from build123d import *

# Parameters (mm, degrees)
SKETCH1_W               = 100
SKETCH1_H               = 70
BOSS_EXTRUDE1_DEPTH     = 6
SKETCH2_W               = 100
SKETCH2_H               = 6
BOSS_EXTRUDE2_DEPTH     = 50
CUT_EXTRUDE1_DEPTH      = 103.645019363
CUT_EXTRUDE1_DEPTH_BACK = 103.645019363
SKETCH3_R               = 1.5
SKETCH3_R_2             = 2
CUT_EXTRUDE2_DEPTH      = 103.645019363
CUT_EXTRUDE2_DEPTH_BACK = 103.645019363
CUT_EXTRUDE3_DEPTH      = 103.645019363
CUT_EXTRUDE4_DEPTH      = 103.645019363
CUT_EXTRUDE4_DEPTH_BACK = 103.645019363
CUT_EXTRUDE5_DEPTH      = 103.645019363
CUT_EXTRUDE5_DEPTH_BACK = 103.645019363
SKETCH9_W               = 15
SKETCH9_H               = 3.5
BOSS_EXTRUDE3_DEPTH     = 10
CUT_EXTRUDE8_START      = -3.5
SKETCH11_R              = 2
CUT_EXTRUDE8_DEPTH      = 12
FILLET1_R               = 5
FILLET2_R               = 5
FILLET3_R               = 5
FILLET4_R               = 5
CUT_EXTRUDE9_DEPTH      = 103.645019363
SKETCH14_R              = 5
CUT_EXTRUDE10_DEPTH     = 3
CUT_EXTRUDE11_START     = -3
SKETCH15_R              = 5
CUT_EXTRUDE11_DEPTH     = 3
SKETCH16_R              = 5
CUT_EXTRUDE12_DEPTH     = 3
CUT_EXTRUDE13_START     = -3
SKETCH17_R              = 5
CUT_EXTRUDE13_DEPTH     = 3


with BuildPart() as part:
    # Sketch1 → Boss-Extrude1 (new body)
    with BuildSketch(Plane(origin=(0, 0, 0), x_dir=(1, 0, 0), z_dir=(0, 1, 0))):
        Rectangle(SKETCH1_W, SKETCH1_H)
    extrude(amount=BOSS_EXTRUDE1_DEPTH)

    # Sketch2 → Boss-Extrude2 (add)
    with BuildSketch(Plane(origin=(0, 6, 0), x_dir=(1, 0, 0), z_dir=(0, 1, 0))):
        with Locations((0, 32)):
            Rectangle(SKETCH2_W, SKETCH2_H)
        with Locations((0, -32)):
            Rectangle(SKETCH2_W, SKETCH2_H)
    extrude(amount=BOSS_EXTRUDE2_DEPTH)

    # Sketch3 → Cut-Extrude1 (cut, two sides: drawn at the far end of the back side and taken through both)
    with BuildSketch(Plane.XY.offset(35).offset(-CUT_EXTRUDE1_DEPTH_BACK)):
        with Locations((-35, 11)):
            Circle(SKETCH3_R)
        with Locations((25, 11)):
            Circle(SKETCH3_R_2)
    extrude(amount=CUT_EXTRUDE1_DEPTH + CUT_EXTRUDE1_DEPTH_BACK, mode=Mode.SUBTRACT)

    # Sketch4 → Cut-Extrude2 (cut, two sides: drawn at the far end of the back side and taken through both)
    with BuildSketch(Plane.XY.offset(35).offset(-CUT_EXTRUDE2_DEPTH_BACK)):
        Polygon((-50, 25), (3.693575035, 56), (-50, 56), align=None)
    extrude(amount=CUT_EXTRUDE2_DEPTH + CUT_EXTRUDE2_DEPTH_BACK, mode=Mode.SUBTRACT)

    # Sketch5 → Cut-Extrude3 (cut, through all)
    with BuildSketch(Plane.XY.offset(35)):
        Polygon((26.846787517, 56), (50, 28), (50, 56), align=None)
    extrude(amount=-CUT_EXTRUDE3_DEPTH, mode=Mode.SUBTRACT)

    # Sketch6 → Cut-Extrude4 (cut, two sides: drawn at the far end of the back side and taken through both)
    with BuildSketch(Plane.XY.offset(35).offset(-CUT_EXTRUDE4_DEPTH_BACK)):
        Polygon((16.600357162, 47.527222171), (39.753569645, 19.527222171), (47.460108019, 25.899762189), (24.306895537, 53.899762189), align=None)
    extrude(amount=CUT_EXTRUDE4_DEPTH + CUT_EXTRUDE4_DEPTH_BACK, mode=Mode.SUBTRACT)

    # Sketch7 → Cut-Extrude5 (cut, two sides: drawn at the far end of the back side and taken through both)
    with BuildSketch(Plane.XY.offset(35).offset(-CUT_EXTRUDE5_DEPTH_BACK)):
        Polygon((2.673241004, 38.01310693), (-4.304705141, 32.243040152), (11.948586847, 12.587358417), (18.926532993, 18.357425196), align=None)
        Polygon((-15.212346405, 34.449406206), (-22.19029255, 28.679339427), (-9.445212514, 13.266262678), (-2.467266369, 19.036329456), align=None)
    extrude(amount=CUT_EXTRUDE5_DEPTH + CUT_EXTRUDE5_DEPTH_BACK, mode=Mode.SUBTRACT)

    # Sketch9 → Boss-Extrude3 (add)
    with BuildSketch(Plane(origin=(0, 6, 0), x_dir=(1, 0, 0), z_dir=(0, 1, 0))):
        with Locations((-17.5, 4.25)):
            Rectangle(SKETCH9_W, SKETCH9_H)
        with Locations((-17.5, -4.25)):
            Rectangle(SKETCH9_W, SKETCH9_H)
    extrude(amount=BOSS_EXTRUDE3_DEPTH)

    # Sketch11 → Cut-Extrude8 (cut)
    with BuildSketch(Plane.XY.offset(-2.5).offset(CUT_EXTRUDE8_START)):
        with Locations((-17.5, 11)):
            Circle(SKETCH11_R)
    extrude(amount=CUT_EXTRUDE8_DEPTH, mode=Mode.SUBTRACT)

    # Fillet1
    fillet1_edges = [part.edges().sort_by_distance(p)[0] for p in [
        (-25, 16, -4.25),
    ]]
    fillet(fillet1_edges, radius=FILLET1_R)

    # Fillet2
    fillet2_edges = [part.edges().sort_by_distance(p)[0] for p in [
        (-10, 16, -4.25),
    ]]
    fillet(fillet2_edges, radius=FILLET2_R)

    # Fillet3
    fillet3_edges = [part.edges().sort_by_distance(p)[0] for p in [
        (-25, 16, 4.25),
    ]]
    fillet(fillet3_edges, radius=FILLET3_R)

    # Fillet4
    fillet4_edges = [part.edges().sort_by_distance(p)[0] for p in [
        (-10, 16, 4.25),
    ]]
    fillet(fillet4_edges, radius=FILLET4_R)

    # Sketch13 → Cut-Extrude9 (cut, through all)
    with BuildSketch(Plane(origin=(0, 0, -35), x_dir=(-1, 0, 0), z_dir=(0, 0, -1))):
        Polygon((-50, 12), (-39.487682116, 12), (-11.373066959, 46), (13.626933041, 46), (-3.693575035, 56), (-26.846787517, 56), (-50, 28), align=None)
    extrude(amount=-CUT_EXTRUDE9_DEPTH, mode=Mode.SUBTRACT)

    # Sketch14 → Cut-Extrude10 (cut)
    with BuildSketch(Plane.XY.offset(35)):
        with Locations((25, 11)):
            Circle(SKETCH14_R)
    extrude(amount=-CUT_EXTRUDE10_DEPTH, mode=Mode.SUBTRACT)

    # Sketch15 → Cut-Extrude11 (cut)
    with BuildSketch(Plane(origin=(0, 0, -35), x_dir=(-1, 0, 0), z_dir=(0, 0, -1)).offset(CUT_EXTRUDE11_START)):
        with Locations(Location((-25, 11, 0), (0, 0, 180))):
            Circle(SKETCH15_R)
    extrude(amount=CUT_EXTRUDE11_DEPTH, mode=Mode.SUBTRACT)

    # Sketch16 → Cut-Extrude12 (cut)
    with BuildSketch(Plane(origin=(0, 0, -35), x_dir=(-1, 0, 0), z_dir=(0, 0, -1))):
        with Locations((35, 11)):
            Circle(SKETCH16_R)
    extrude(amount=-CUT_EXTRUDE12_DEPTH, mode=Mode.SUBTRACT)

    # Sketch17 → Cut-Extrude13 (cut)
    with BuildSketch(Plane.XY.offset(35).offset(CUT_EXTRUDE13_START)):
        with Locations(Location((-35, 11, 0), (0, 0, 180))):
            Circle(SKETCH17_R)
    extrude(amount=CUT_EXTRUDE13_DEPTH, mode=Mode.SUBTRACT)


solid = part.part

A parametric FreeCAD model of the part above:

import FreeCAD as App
import Part
import Sketcher

V = App.Vector
Q = App.Units.Quantity


def edges_at(feature, points):
    """Names of the edges that pass closest to the given points."""
    edges = feature.Shape.Edges
    near = lambda p: min(range(len(edges)), key=lambda i: edges[i].distToShape(Part.Vertex(*p))[0])
    return sorted({f"Edge{near(p) + 1}" for p in points})


def add_polygon(sketch, points):
    """Adds a closed chain of lines whose ends are joined by coincident constraints."""
    first, n = sketch.GeometryCount, len(points)
    for a, b in zip(points, points[1:] + points[:1]):
        sketch.addGeometry(Part.LineSegment(App.Vector(*a, 0), App.Vector(*b, 0)), False)
    for i in range(n):
        sketch.addConstraint(Sketcher.Constraint("Coincident", first + i, 2, first + (i + 1) % n, 1))

doc = App.newDocument("Part")
params = doc.addObject("Spreadsheet::Sheet", "Params")
for row, (alias, value) in enumerate([
    ("sketch1_width", "100 mm"),
    ("sketch1_height", "70 mm"),
    ("pad1_length", "6 mm"),
    ("sketch2_width", "100 mm"),
    ("sketch2_height", "6 mm"),
    ("pad2_length", "50 mm"),
    ("sketch3_diameter", "3 mm"),
    ("sketch3_diameter2", "4 mm"),
    ("sketch4_height", "31 mm"),
    ("sketch5_height", "28 mm"),
    ("sketch6_length", "10 mm"),
    ("sketch7_length", "20 mm"),
    ("sketch8_width", "15 mm"),
    ("sketch8_height", "3.5 mm"),
    ("pad3_length", "10 mm"),
    ("sketch9_diameter", "4 mm"),
    ("pocket6_length", "12 mm"),
    ("fillet_radius", "5 mm"),
    ("fillet2_radius", "5 mm"),
    ("fillet3_radius", "5 mm"),
    ("fillet4_radius", "5 mm"),
    ("sketch10_width", "25 mm"),
    ("sketch10_height", "16 mm"),
    ("sketch10_length", "20 mm"),
    ("sketch11_diameter", "10 mm"),
    ("pocket8_length", "3 mm"),
    ("sketch12_diameter", "10 mm"),
    ("pocket9_length", "3 mm"),
    ("sketch13_diameter", "10 mm"),
    ("pocket10_length", "3 mm"),
    ("sketch14_diameter", "10 mm"),
    ("pocket11_length", "3 mm"),
], start=1):
    params.set(f"A{row}", alias)
    params.set(f"B{row}", "=" + value)
    params.setAlias(f"B{row}", alias)

body = doc.addObject("PartDesign::Body", "Body")

sketch1 = body.newObject("Sketcher::SketchObject", "Sketch")
sketch1.AttachmentSupport = (doc.getObject("XZ_Plane"), [""])
sketch1.MapMode = "FlatFace"
add_polygon(sketch1, [(-50, -35), (-50, 35), (50, 35), (50, -35)])
sketch1.addConstraint([
    Sketcher.Constraint("Vertical", 0),
    Sketcher.Constraint("Horizontal", 1),
    Sketcher.Constraint("Vertical", 2),
    Sketcher.Constraint("Horizontal", 3),
    Sketcher.Constraint("Symmetric", 0, 2, 2, 2, -1, 1),
    Sketcher.Constraint("DistanceX", 1, 1, 1, 2, 100.0),
    Sketcher.Constraint("DistanceY", 0, 1, 0, 2, 70.0),
])
sketch1.setExpression("Constraints[9]", "Params.sketch1_width")
sketch1.setExpression("Constraints[10]", "Params.sketch1_height")
pad1 = body.newObject("PartDesign::Pad", "Pad")
pad1.Profile = sketch1
pad1.setExpression("Length", "Params.pad1_length")
pad1.Reversed = True

sketch2 = body.newObject("Sketcher::SketchObject", "Sketch001")
sketch2.AttachmentSupport = (doc.getObject("XZ_Plane"), [""])
sketch2.MapMode = "FlatFace"
sketch2.AttachmentOffset = App.Placement(V(0, 0, -6), App.Rotation())
add_polygon(sketch2, [(-50, -35), (-50, -29), (50, -29), (50, -35)])
add_polygon(sketch2, [(-50, 29), (-50, 35), (50, 35), (50, 29)])
sketch2.addConstraint([
    Sketcher.Constraint("Vertical", 0),
    Sketcher.Constraint("Horizontal", 1),
    Sketcher.Constraint("Vertical", 2),
    Sketcher.Constraint("Horizontal", 3),
    Sketcher.Constraint("Vertical", 4),
    Sketcher.Constraint("Horizontal", 5),
    Sketcher.Constraint("Vertical", 6),
    Sketcher.Constraint("Horizontal", 7),
    Sketcher.Constraint("Symmetric", 2, 2, 4, 2, -1, 1),
    Sketcher.Constraint("Symmetric", 0, 2, 6, 2, -1, 1),
    Sketcher.Constraint("Vertical", 3, 2, 4, 2),
    Sketcher.Constraint("DistanceX", 1, 1, 1, 2, 100.0),
    Sketcher.Constraint("DistanceY", 0, 1, 0, 2, 6.0),
    Sketcher.Constraint("DistanceY", 0, 2, -1, 1, 29.0),
])
sketch2.setExpression("Constraints[19]", "Params.sketch2_width")
sketch2.setExpression("Constraints[20]", "Params.sketch2_height")
pad2 = body.newObject("PartDesign::Pad", "Pad001")
pad2.Profile = sketch2
pad2.setExpression("Length", "Params.pad2_length")
pad2.Reversed = True

sketch3 = body.newObject("Sketcher::SketchObject", "Sketch002")
sketch3.AttachmentSupport = (doc.getObject("XY_Plane"), [""])
sketch3.MapMode = "FlatFace"
sketch3.AttachmentOffset = App.Placement(V(0, 0, 35), App.Rotation())
sketch3.addGeometry([
    Part.Circle(V(-35, 11, 0), V(0, 0, 1), 1.5),
    Part.Circle(V(25, 11, 0), V(0, 0, 1), 2),
], False)
sketch3.addConstraint([
    Sketcher.Constraint("Horizontal", 0, 3, 1, 3),
    Sketcher.Constraint("Diameter", 0, 3.0),
    Sketcher.Constraint("Diameter", 1, 4.0),
    Sketcher.Constraint("DistanceX", 0, 3, -1, 1, 35.0),
    Sketcher.Constraint("DistanceY", -1, 1, 0, 3, 11.0),
    Sketcher.Constraint("DistanceX", -1, 1, 1, 3, 25.0),
])
sketch3.setExpression("Constraints[1]", "Params.sketch3_diameter")
sketch3.setExpression("Constraints[2]", "Params.sketch3_diameter2")
pocket1 = body.newObject("PartDesign::Pocket", "Pocket")
pocket1.Profile = sketch3
pocket1.Type = "ThroughAll"
pocket1.Midplane = True

sketch4 = body.newObject("Sketcher::SketchObject", "Sketch003")
sketch4.AttachmentSupport = (doc.getObject("XY_Plane"), [""])
sketch4.MapMode = "FlatFace"
sketch4.AttachmentOffset = App.Placement(V(0, 0, 35), App.Rotation())
add_polygon(sketch4, [(-50, 25), (4, 56), (-50, 56)])
sketch4.addConstraint([
    Sketcher.Constraint("Horizontal", 1),
    Sketcher.Constraint("Vertical", 2),
    Sketcher.Constraint("DistanceY", 2, 2, 2, 1, 31.0),
    Sketcher.Constraint("Angle", 0, Q("30 deg")),
    Sketcher.Constraint("DistanceY", -1, 1, 0, 2, 56.0),
    Sketcher.Constraint("DistanceX", 1, 2, -1, 1, 50.0),
])
sketch4.setExpression("Constraints[5]", "Params.sketch4_height")
pocket2 = body.newObject("PartDesign::Pocket", "Pocket001")
pocket2.Profile = sketch4
pocket2.Type = "ThroughAll"
pocket2.Midplane = True

sketch5 = body.newObject("Sketcher::SketchObject", "Sketch004")
sketch5.AttachmentSupport = (doc.getObject("XY_Plane"), [""])
sketch5.MapMode = "FlatFace"
sketch5.AttachmentOffset = App.Placement(V(0, 0, 35), App.Rotation())
add_polygon(sketch5, [(27, 56), (50, 28), (50, 56)])
sketch5.addConstraint([
    Sketcher.Constraint("Vertical", 1),
    Sketcher.Constraint("Horizontal", 2),
    Sketcher.Constraint("DistanceY", 1, 1, 1, 2, 28.0),
    Sketcher.Constraint("DistanceX", -1, 1, 0, 2, 50.0),
    Sketcher.Constraint("DistanceY", -1, 1, 0, 2, 28.0),
    Sketcher.Constraint("DistanceX", 2, 2, 2, 1, 23.153212),
])
sketch5.setExpression("Constraints[5]", "Params.sketch5_height")
pocket3 = body.newObject("PartDesign::Pocket", "Pocket002")
pocket3.Profile = sketch5
pocket3.Type = "ThroughAll"

sketch6 = body.newObject("Sketcher::SketchObject", "Sketch005")
sketch6.AttachmentSupport = (doc.getObject("XY_Plane"), [""])
sketch6.MapMode = "FlatFace"
sketch6.AttachmentOffset = App.Placement(V(0, 0, 35), App.Rotation())
add_polygon(sketch6, [(17, 48), (40, 20), (47, 26), (24, 54)])
sketch6.addConstraint([
    Sketcher.Constraint("Perpendicular", 0, 1),
    Sketcher.Constraint("Perpendicular", 1, 2),
    Sketcher.Constraint("Perpendicular", 2, 3),
    Sketcher.Constraint("Distance", 1, 10.0),
    Sketcher.Constraint("DistanceY", 1, 2, 2, 2, 28.0),
    Sketcher.Constraint("DistanceX", -1, 1, 0, 2, 39.75357),
    Sketcher.Constraint("DistanceX", -1, 1, 1, 2, 47.460108),
    Sketcher.Constraint("DistanceY", -1, 1, 0, 2, 19.527222),
])
sketch6.setExpression("Constraints[7]", "Params.sketch6_length")
pocket4 = body.newObject("PartDesign::Pocket", "Pocket003")
pocket4.Profile = sketch6
pocket4.Type = "ThroughAll"
pocket4.Midplane = True

sketch7 = body.newObject("Sketcher::SketchObject", "Sketch006")
sketch7.AttachmentSupport = (doc.getObject("XY_Plane"), [""])
sketch7.MapMode = "FlatFace"
sketch7.AttachmentOffset = App.Placement(V(0, 0, 35), App.Rotation())
add_polygon(sketch7, [(3, 38), (-4, 32), (12, 13), (19, 18)])
add_polygon(sketch7, [(-15, 34), (-22, 29), (-9, 13), (-2, 19)])
sketch7.addConstraint([
    Sketcher.Constraint("Perpendicular", 0, 1),
    Sketcher.Constraint("Perpendicular", 1, 2),
    Sketcher.Constraint("Perpendicular", 2, 3),
    Sketcher.Constraint("Perpendicular", 3, 4),
    Sketcher.Constraint("Perpendicular", 4, 5),
    Sketcher.Constraint("Perpendicular", 5, 6),
    Sketcher.Constraint("Perpendicular", 6, 7),
    Sketcher.Constraint("Equal", 2, 4),
    Sketcher.Constraint("Distance", 5, 20.0),
    Sketcher.Constraint("Distance", 1, 25.505202),
    Sketcher.Constraint("DistanceY", 4, 2, 0, 2, 3.563701),
    Sketcher.Constraint("DistanceX", 5, 2, 1, 2, 21.393799),
    Sketcher.Constraint("Distance", 0, 9.054579),
    Sketcher.Constraint("DistanceY", -1, 1, 0, 2, 32.24304),
    Sketcher.Constraint("DistanceY", -1, 1, 1, 2, 12.587358),
    Sketcher.Constraint("DistanceX", -1, 1, 3, 2, 2.673241),
])
sketch7.setExpression("Constraints[16]", "Params.sketch7_length")
pocket5 = body.newObject("PartDesign::Pocket", "Pocket004")
pocket5.Profile = sketch7
pocket5.Type = "ThroughAll"
pocket5.Midplane = True

sketch8 = body.newObject("Sketcher::SketchObject", "Sketch007")
sketch8.AttachmentSupport = (doc.getObject("XZ_Plane"), [""])
sketch8.MapMode = "FlatFace"
sketch8.AttachmentOffset = App.Placement(V(0, 0, -6), App.Rotation())
add_polygon(sketch8, [(-25, -6), (-25, -2.5), (-10, -2.5), (-10, -6)])
add_polygon(sketch8, [(-25, 2.5), (-25, 6), (-10, 6), (-10, 2.5)])
sketch8.addConstraint([
    Sketcher.Constraint("Vertical", 0),
    Sketcher.Constraint("Horizontal", 1),
    Sketcher.Constraint("Vertical", 2),
    Sketcher.Constraint("Horizontal", 3),
    Sketcher.Constraint("Vertical", 4),
    Sketcher.Constraint("Horizontal", 5),
    Sketcher.Constraint("Vertical", 6),
    Sketcher.Constraint("Horizontal", 7),
    Sketcher.Constraint("Symmetric", 3, 2, 4, 2, -1),
    Sketcher.Constraint("Symmetric", 1, 2, 6, 2, -1),
    Sketcher.Constraint("DistanceX", 1, 1, 1, 2, 15.0),
    Sketcher.Constraint("DistanceY", 0, 1, 0, 2, 3.5),
    Sketcher.Constraint("DistanceX", 0, 2, -1, 1, 25.0),
    Sketcher.Constraint("DistanceY", 2, 2, -1, 1, 6.0),
])
sketch8.setExpression("Constraints[18]", "Params.sketch8_width")
sketch8.setExpression("Constraints[19]", "Params.sketch8_height")
pad3 = body.newObject("PartDesign::Pad", "Pad002")
pad3.Profile = sketch8
pad3.setExpression("Length", "Params.pad3_length")
pad3.Reversed = True

sketch9 = body.newObject("Sketcher::SketchObject", "Sketch008")
sketch9.AttachmentSupport = (doc.getObject("XY_Plane"), [""])
sketch9.MapMode = "FlatFace"
sketch9.AttachmentOffset = App.Placement(V(0, 0, -6), App.Rotation())
sketch9.addGeometry(Part.Circle(V(-17.5, 11, 0), V(0, 0, 1), 2), False)
sketch9.addConstraint([
    Sketcher.Constraint("Diameter", 0, 4.0),
    Sketcher.Constraint("DistanceY", -1, 1, 0, 3, 11.0),
    Sketcher.Constraint("DistanceX", 0, 3, -1, 1, 17.5),
])
sketch9.setExpression("Constraints[0]", "Params.sketch9_diameter")
pocket6 = body.newObject("PartDesign::Pocket", "Pocket005")
pocket6.Profile = sketch9
pocket6.setExpression("Length", "Params.pocket6_length")
pocket6.Reversed = True
doc.recompute()

fillet = body.newObject("PartDesign::Fillet", "Fillet")
fillet.Base = (pocket6, edges_at(pocket6, [(-25, 16, -4.25)]))
fillet.setExpression("Radius", "Params.fillet_radius")
doc.recompute()

fillet2 = body.newObject("PartDesign::Fillet", "Fillet001")
fillet2.Base = (fillet, edges_at(fillet, [(-10, 16, -4.25)]))
fillet2.setExpression("Radius", "Params.fillet2_radius")
doc.recompute()

fillet3 = body.newObject("PartDesign::Fillet", "Fillet002")
fillet3.Base = (fillet2, edges_at(fillet2, [(-25, 16, 4.25)]))
fillet3.setExpression("Radius", "Params.fillet3_radius")
doc.recompute()

fillet4 = body.newObject("PartDesign::Fillet", "Fillet003")
fillet4.Base = (fillet3, edges_at(fillet3, [(-10, 16, 4.25)]))
fillet4.setExpression("Radius", "Params.fillet4_radius")

sketch10 = body.newObject("Sketcher::SketchObject", "Sketch009")
sketch10.AttachmentSupport = (doc.getObject("XY_Plane"), [""])
sketch10.MapMode = "FlatFace"
sketch10.AttachmentOffset = App.Placement(V(0, 0, -35), App.Rotation())
add_polygon(sketch10, [(50, 12), (39, 12), (11, 46), (-14, 46), (4, 56), (27, 56), (50, 28)])
sketch10.addConstraint([
    Sketcher.Constraint("Horizontal", 0),
    Sketcher.Constraint("Horizontal", 2),
    Sketcher.Constraint("Horizontal", 4),
    Sketcher.Constraint("Vertical", 6),
    Sketcher.Constraint("Parallel", 1, 5),
    Sketcher.Constraint("DistanceX", 2, 2, 2, 1, 25.0),
    Sketcher.Constraint("DistanceY", 6, 2, 6, 1, 16.0),
    Sketcher.Constraint("Angle", 3, Q("30 deg")),
    Sketcher.Constraint("Distance", 3, 20.0),
    Sketcher.Constraint("DistanceY", -1, 1, 0, 2, 12.0),
    Sketcher.Constraint("DistanceY", -1, 1, 1, 2, 46.0),
    Sketcher.Constraint("DistanceX", -1, 1, 5, 2, 50.0),
    Sketcher.Constraint("Distance", 1, 44.118381),
    Sketcher.Constraint("DistanceX", 0, 2, 0, 1, 10.512318),
])
sketch10.setExpression("Constraints[12]", "Params.sketch10_width")
sketch10.setExpression("Constraints[13]", "Params.sketch10_height")
sketch10.setExpression("Constraints[15]", "Params.sketch10_length")
pocket7 = body.newObject("PartDesign::Pocket", "Pocket006")
pocket7.Profile = sketch10
pocket7.Type = "ThroughAll"
pocket7.Reversed = True

sketch11 = body.newObject("Sketcher::SketchObject", "Sketch010")
sketch11.AttachmentSupport = (doc.getObject("XY_Plane"), [""])
sketch11.MapMode = "FlatFace"
sketch11.AttachmentOffset = App.Placement(V(0, 0, 35), App.Rotation())
sketch11.addGeometry(Part.Circle(V(25, 11, 0), V(0, 0, 1), 5), False)
sketch11.addConstraint([
    Sketcher.Constraint("Diameter", 0, 10.0),
    Sketcher.Constraint("DistanceX", -1, 1, 0, 3, 25.0),
    Sketcher.Constraint("DistanceY", -1, 1, 0, 3, 11.0),
])
sketch11.setExpression("Constraints[0]", "Params.sketch11_diameter")
pocket8 = body.newObject("PartDesign::Pocket", "Pocket007")
pocket8.Profile = sketch11
pocket8.setExpression("Length", "Params.pocket8_length")

sketch12 = body.newObject("Sketcher::SketchObject", "Sketch011")
sketch12.AttachmentSupport = (doc.getObject("XY_Plane"), [""])
sketch12.MapMode = "FlatFace"
sketch12.AttachmentOffset = App.Placement(V(0, 0, -32), App.Rotation())
sketch12.addGeometry(Part.Circle(V(25, 11, 0), V(0, 0, 1), 5), False)
sketch12.addConstraint([
    Sketcher.Constraint("Diameter", 0, 10.0),
    Sketcher.Constraint("DistanceX", -1, 1, 0, 3, 25.0),
    Sketcher.Constraint("DistanceY", -1, 1, 0, 3, 11.0),
])
sketch12.setExpression("Constraints[0]", "Params.sketch12_diameter")
pocket9 = body.newObject("PartDesign::Pocket", "Pocket008")
pocket9.Profile = sketch12
pocket9.setExpression("Length", "Params.pocket9_length")

sketch13 = body.newObject("Sketcher::SketchObject", "Sketch012")
sketch13.AttachmentSupport = (doc.getObject("XY_Plane"), [""])
sketch13.MapMode = "FlatFace"
sketch13.AttachmentOffset = App.Placement(V(0, 0, -35), App.Rotation())
sketch13.addGeometry(Part.Circle(V(-35, 11, 0), V(0, 0, 1), 5), False)
sketch13.addConstraint([
    Sketcher.Constraint("Diameter", 0, 10.0),
    Sketcher.Constraint("DistanceX", 0, 3, -1, 1, 35.0),
    Sketcher.Constraint("DistanceY", -1, 1, 0, 3, 11.0),
])
sketch13.setExpression("Constraints[0]", "Params.sketch13_diameter")
pocket10 = body.newObject("PartDesign::Pocket", "Pocket009")
pocket10.Profile = sketch13
pocket10.setExpression("Length", "Params.pocket10_length")
pocket10.Reversed = True

sketch14 = body.newObject("Sketcher::SketchObject", "Sketch013")
sketch14.AttachmentSupport = (doc.getObject("XY_Plane"), [""])
sketch14.MapMode = "FlatFace"
sketch14.AttachmentOffset = App.Placement(V(0, 0, 32), App.Rotation())
sketch14.addGeometry(Part.Circle(V(-35, 11, 0), V(0, 0, 1), 5), False)
sketch14.addConstraint([
    Sketcher.Constraint("Diameter", 0, 10.0),
    Sketcher.Constraint("DistanceX", 0, 3, -1, 1, 35.0),
    Sketcher.Constraint("DistanceY", -1, 1, 0, 3, 11.0),
])
sketch14.setExpression("Constraints[0]", "Params.sketch14_diameter")
pocket11 = body.newObject("PartDesign::Pocket", "Pocket010")
pocket11.Profile = sketch14
pocket11.setExpression("Length", "Params.pocket11_length")
pocket11.Reversed = True

doc.recompute()
